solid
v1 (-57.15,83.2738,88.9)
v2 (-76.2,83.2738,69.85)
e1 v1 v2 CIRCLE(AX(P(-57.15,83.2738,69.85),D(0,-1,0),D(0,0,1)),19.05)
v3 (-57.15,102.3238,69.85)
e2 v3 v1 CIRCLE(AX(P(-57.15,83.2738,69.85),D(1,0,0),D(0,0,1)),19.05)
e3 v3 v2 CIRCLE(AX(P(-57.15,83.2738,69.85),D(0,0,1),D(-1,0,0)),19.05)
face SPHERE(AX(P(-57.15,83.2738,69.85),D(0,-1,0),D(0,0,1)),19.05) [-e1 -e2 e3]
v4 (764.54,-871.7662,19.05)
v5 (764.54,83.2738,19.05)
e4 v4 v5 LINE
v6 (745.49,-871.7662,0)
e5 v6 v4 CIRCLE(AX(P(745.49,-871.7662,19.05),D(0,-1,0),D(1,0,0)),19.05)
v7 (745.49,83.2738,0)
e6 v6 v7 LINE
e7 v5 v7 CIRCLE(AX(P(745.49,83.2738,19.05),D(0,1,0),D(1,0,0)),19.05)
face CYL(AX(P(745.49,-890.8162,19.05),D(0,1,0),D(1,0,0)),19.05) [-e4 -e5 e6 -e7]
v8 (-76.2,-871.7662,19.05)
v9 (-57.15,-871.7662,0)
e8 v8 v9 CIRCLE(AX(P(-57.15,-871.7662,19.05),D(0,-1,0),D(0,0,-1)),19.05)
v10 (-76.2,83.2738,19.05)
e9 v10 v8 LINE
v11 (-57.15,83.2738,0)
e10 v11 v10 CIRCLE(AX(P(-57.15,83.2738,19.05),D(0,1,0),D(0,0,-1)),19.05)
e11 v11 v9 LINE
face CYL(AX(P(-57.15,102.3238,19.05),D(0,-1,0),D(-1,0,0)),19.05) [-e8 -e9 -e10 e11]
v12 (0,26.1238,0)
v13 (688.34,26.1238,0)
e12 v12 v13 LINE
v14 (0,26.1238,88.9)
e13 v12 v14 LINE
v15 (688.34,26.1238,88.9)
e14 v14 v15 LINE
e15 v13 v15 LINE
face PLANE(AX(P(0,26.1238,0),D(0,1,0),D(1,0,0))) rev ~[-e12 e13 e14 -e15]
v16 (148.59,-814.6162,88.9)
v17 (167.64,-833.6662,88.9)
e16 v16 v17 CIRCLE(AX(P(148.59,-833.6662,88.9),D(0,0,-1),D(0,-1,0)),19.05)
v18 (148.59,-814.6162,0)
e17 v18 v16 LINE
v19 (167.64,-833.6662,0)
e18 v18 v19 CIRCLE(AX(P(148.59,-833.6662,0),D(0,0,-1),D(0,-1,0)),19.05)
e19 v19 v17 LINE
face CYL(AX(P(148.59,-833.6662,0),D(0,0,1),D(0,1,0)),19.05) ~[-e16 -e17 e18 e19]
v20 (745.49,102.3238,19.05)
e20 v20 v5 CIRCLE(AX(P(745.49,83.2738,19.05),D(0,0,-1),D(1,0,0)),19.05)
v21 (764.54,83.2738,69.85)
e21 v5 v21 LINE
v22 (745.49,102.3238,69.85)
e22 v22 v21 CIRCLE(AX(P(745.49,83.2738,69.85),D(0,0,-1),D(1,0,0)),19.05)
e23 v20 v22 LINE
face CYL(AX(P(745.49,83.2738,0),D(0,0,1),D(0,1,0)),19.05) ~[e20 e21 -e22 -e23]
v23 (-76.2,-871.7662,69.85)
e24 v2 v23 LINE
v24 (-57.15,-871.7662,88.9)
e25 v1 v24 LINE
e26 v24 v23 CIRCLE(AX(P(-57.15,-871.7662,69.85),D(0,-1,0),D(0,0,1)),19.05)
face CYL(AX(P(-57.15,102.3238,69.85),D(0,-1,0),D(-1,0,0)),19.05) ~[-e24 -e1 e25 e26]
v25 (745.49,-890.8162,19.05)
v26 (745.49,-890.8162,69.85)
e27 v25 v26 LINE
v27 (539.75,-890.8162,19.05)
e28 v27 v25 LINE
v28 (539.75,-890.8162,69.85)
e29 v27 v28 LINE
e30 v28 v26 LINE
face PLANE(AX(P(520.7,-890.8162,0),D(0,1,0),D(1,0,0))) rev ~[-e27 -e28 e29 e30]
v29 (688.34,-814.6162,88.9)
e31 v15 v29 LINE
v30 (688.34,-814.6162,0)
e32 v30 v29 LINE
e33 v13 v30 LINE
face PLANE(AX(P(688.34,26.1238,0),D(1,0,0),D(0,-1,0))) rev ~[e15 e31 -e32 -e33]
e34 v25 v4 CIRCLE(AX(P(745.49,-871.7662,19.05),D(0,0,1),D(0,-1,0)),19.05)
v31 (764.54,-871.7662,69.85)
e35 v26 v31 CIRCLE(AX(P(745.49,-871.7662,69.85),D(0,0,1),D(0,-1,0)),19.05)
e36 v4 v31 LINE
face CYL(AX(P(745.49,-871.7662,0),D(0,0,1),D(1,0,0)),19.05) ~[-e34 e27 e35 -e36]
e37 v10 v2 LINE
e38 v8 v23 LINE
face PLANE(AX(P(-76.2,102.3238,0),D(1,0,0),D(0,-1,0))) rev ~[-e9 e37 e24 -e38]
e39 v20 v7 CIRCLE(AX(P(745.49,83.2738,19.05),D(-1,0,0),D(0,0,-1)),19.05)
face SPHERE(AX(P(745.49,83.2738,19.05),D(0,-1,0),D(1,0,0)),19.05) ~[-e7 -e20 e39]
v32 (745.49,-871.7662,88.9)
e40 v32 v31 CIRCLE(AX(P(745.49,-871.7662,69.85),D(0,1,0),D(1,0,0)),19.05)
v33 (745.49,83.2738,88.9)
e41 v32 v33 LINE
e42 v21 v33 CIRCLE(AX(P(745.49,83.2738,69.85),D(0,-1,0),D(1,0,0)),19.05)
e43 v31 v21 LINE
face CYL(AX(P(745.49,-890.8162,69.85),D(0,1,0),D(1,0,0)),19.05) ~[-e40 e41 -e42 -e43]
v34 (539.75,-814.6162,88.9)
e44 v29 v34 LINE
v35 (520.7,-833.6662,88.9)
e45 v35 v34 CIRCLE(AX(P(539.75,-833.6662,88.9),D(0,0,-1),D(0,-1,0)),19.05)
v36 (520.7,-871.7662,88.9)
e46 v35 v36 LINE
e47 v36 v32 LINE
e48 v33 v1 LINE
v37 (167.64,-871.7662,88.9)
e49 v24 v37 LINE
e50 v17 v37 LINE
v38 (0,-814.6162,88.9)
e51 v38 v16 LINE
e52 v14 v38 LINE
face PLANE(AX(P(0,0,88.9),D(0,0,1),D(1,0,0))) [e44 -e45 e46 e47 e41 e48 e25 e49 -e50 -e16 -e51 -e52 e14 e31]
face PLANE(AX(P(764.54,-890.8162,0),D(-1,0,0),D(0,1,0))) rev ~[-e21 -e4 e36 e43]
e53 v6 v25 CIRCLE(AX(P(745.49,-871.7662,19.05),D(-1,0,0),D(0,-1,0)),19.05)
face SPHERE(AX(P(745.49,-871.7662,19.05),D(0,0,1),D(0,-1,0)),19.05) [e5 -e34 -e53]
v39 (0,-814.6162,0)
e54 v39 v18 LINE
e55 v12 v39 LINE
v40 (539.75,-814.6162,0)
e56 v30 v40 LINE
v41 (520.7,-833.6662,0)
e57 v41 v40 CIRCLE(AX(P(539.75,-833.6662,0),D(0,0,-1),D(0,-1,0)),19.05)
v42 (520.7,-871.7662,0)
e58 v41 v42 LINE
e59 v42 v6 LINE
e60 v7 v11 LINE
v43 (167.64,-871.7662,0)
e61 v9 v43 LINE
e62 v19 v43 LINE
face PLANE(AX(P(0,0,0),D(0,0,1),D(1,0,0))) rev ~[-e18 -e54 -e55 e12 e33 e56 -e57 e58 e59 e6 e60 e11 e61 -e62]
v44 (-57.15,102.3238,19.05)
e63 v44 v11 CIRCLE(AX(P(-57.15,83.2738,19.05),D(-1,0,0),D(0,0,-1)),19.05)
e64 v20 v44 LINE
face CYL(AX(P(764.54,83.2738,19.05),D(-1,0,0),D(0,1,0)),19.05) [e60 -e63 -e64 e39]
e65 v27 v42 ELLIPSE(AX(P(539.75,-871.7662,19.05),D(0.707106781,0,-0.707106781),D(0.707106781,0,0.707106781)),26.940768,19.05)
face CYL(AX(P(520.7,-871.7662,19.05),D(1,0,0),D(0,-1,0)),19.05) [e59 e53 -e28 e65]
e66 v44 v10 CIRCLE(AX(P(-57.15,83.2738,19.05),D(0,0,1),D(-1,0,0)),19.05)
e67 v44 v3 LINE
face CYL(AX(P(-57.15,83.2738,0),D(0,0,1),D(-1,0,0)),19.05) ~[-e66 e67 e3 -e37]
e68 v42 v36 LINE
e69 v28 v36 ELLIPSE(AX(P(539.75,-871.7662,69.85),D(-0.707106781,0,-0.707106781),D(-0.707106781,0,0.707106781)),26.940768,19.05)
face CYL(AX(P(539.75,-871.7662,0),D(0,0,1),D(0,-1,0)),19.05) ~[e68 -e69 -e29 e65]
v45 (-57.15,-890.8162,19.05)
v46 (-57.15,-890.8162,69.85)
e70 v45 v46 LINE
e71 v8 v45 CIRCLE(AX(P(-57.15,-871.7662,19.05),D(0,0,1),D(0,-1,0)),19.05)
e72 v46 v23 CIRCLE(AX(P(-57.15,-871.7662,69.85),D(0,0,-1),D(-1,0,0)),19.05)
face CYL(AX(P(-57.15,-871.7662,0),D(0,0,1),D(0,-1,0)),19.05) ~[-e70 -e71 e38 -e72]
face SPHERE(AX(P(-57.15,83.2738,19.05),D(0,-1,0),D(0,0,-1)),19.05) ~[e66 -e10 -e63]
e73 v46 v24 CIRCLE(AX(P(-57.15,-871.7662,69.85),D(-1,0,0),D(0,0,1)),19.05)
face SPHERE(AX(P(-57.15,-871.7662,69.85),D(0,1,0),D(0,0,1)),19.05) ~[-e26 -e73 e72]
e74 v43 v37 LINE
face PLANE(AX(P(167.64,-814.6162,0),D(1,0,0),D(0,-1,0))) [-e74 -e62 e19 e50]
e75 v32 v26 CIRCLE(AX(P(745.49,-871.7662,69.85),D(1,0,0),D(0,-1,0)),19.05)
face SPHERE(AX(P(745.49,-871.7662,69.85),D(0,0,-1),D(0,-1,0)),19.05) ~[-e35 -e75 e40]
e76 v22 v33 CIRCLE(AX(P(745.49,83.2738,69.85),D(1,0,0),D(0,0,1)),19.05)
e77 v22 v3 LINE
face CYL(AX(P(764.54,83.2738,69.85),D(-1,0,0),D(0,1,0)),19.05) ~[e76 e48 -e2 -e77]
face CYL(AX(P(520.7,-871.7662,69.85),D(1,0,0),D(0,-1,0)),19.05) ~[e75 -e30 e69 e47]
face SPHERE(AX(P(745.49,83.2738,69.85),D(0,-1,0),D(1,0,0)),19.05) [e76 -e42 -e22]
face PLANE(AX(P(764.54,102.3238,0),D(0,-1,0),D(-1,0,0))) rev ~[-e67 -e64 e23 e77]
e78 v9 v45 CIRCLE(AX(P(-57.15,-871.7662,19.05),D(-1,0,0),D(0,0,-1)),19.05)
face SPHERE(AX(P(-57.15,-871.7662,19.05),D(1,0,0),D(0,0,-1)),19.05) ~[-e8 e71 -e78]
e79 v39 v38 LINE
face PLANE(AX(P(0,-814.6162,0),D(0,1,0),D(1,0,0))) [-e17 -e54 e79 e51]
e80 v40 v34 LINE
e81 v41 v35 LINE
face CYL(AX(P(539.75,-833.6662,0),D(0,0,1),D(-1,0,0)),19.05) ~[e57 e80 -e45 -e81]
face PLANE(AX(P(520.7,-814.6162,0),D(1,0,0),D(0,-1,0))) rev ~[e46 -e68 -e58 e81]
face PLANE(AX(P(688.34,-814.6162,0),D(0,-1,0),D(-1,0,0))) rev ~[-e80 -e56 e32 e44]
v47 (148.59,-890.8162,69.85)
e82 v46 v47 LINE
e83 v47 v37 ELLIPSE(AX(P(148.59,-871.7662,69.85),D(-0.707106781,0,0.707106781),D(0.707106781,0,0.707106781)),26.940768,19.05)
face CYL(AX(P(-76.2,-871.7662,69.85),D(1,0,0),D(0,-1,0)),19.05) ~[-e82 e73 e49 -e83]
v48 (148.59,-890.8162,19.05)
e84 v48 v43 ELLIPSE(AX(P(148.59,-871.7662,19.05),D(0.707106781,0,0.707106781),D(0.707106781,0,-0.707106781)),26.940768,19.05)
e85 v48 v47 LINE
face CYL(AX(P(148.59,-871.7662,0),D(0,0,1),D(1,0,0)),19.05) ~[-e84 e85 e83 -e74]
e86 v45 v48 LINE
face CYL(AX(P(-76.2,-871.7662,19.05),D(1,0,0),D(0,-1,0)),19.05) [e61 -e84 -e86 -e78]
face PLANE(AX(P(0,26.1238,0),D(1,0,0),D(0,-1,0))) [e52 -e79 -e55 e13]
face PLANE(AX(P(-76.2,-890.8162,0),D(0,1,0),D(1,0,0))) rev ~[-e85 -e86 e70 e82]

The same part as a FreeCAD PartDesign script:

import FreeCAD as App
import Part
import Sketcher

V = App.Vector
Q = App.Units.Quantity


def edges_at(feature, points):
    """Names of the edges that pass closest to the given points."""
    edges = feature.Shape.Edges
    near = lambda p: min(range(len(edges)), key=lambda i: edges[i].distToShape(Part.Vertex(*p))[0])
    return sorted({f"Edge{near(p) + 1}" for p in points})


def add_polygon(sketch, points):
    """Adds a closed chain of lines whose ends are joined by coincident constraints."""
    first, n = sketch.GeometryCount, len(points)
    for a, b in zip(points, points[1:] + points[:1]):
        sketch.addGeometry(Part.LineSegment(App.Vector(*a, 0), App.Vector(*b, 0)), False)
    for i in range(n):
        sketch.addConstraint(Sketcher.Constraint("Coincident", first + i, 2, first + (i + 1) % n, 1))

doc = App.newDocument("Part")
body = doc.addObject("PartDesign::Body", "Body")

sketch1 = body.newObject("Sketcher::SketchObject", "Sketch")
sketch1.AttachmentSupport = (doc.getObject("XY_Plane"), [""])
sketch1.MapMode = "FlatFace"
add_polygon(sketch1, [(0, -815), (0, 26), (688, 26), (688, -815), (521, -815), (521, -891), (765, -891), (765, 102), (-76, 102), (-76, -891), (168, -891), (168, -815)])
sketch1.addConstraint(Sketcher.Constraint("Vertical", 0))
sketch1.addConstraint(Sketcher.Constraint("Horizontal", 1))
sketch1.addConstraint(Sketcher.Constraint("Vertical", 2))
sketch1.addConstraint(Sketcher.Constraint("Horizontal", 3))
sketch1.addConstraint(Sketcher.Constraint("Vertical", 4))
sketch1.addConstraint(Sketcher.Constraint("Horizontal", 5))
sketch1.addConstraint(Sketcher.Constraint("Vertical", 6))
sketch1.addConstraint(Sketcher.Constraint("Horizontal", 7))
sketch1.addConstraint(Sketcher.Constraint("Vertical", 8))
sketch1.addConstraint(Sketcher.Constraint("Horizontal", 9))
sketch1.addConstraint(Sketcher.Constraint("Vertical", 10))
sketch1.addConstraint(Sketcher.Constraint("Horizontal", 11))
sketch1.addConstraint(Sketcher.Constraint("PointOnObject", 0, 2, -2))
sketch1.addConstraint(Sketcher.Constraint("Horizontal", 5, 2, 8, 2))
sketch1.addConstraint(Sketcher.Constraint("Horizontal", 3, 2, 10, 2))
sketch1.addConstraint(Sketcher.Constraint("Equal", 5, 9))
sketch1.addConstraint(Sketcher.Constraint("Equal", 3, 11))
sketch1.addConstraint(Sketcher.Constraint("Equal", 7, 0))
sketch1.addConstraint(Sketcher.Constraint("DistanceY", 4, 2, 4, 1, Q("3 in")))
sketch1.addConstraint(Sketcher.Constraint("DistanceX", 1, 1, 1, 2, Q("27.1 in")))
sketch1.addConstraint(Sketcher.Constraint("DistanceX", 3, 2, 3, 1, Q("6.6 in")))
sketch1.addConstraint(Sketcher.Constraint("DistanceX", 7, 2, 7, 1, Q("33.1 in")))
sketch1.addConstraint(Sketcher.Constraint("DistanceY", 1, 2, 6, 2, Q("3 in")))
sketch1.addConstraint(Sketcher.Constraint("DistanceY", -1, 1, 0, 2, Q("1.0285 in")))
pad1 = body.newObject("PartDesign::Pad", "Pad")
pad1.Profile = sketch1
pad1.Length = Q("3.5 in")
doc.recompute()

fillet = body.newObject("PartDesign::Fillet", "Fillet")
fillet.Base = (pad1, edges_at(pad1, [
    (-76.2, -394.246, 88.9),
    (45.72, -890.816, 88.9),
    (45.72, -890.816, 0),
    (-76.2, -394.246, 0),
    (-76.2, -890.816, 44.45),
    (167.64, -890.816, 44.45),
    (520.7, -890.816, 44.45),
    (764.54, -890.816, 44.45),
    (642.62, -890.816, 88.9),
    (642.62, -890.816, 0),
    (764.54, -394.246, 88.9),
    (764.54, -394.246, 0),
    (764.54, 102.324, 44.45),
    (344.17, 102.324, 88.9),
    (344.17, 102.324, 0),
    (-76.2, 102.324, 44.45),
    (520.7, -814.616, 44.45),
    (167.64, -814.616, 44.45),
]))
fillet.Radius = Q("0.75 in")

doc.recompute()
